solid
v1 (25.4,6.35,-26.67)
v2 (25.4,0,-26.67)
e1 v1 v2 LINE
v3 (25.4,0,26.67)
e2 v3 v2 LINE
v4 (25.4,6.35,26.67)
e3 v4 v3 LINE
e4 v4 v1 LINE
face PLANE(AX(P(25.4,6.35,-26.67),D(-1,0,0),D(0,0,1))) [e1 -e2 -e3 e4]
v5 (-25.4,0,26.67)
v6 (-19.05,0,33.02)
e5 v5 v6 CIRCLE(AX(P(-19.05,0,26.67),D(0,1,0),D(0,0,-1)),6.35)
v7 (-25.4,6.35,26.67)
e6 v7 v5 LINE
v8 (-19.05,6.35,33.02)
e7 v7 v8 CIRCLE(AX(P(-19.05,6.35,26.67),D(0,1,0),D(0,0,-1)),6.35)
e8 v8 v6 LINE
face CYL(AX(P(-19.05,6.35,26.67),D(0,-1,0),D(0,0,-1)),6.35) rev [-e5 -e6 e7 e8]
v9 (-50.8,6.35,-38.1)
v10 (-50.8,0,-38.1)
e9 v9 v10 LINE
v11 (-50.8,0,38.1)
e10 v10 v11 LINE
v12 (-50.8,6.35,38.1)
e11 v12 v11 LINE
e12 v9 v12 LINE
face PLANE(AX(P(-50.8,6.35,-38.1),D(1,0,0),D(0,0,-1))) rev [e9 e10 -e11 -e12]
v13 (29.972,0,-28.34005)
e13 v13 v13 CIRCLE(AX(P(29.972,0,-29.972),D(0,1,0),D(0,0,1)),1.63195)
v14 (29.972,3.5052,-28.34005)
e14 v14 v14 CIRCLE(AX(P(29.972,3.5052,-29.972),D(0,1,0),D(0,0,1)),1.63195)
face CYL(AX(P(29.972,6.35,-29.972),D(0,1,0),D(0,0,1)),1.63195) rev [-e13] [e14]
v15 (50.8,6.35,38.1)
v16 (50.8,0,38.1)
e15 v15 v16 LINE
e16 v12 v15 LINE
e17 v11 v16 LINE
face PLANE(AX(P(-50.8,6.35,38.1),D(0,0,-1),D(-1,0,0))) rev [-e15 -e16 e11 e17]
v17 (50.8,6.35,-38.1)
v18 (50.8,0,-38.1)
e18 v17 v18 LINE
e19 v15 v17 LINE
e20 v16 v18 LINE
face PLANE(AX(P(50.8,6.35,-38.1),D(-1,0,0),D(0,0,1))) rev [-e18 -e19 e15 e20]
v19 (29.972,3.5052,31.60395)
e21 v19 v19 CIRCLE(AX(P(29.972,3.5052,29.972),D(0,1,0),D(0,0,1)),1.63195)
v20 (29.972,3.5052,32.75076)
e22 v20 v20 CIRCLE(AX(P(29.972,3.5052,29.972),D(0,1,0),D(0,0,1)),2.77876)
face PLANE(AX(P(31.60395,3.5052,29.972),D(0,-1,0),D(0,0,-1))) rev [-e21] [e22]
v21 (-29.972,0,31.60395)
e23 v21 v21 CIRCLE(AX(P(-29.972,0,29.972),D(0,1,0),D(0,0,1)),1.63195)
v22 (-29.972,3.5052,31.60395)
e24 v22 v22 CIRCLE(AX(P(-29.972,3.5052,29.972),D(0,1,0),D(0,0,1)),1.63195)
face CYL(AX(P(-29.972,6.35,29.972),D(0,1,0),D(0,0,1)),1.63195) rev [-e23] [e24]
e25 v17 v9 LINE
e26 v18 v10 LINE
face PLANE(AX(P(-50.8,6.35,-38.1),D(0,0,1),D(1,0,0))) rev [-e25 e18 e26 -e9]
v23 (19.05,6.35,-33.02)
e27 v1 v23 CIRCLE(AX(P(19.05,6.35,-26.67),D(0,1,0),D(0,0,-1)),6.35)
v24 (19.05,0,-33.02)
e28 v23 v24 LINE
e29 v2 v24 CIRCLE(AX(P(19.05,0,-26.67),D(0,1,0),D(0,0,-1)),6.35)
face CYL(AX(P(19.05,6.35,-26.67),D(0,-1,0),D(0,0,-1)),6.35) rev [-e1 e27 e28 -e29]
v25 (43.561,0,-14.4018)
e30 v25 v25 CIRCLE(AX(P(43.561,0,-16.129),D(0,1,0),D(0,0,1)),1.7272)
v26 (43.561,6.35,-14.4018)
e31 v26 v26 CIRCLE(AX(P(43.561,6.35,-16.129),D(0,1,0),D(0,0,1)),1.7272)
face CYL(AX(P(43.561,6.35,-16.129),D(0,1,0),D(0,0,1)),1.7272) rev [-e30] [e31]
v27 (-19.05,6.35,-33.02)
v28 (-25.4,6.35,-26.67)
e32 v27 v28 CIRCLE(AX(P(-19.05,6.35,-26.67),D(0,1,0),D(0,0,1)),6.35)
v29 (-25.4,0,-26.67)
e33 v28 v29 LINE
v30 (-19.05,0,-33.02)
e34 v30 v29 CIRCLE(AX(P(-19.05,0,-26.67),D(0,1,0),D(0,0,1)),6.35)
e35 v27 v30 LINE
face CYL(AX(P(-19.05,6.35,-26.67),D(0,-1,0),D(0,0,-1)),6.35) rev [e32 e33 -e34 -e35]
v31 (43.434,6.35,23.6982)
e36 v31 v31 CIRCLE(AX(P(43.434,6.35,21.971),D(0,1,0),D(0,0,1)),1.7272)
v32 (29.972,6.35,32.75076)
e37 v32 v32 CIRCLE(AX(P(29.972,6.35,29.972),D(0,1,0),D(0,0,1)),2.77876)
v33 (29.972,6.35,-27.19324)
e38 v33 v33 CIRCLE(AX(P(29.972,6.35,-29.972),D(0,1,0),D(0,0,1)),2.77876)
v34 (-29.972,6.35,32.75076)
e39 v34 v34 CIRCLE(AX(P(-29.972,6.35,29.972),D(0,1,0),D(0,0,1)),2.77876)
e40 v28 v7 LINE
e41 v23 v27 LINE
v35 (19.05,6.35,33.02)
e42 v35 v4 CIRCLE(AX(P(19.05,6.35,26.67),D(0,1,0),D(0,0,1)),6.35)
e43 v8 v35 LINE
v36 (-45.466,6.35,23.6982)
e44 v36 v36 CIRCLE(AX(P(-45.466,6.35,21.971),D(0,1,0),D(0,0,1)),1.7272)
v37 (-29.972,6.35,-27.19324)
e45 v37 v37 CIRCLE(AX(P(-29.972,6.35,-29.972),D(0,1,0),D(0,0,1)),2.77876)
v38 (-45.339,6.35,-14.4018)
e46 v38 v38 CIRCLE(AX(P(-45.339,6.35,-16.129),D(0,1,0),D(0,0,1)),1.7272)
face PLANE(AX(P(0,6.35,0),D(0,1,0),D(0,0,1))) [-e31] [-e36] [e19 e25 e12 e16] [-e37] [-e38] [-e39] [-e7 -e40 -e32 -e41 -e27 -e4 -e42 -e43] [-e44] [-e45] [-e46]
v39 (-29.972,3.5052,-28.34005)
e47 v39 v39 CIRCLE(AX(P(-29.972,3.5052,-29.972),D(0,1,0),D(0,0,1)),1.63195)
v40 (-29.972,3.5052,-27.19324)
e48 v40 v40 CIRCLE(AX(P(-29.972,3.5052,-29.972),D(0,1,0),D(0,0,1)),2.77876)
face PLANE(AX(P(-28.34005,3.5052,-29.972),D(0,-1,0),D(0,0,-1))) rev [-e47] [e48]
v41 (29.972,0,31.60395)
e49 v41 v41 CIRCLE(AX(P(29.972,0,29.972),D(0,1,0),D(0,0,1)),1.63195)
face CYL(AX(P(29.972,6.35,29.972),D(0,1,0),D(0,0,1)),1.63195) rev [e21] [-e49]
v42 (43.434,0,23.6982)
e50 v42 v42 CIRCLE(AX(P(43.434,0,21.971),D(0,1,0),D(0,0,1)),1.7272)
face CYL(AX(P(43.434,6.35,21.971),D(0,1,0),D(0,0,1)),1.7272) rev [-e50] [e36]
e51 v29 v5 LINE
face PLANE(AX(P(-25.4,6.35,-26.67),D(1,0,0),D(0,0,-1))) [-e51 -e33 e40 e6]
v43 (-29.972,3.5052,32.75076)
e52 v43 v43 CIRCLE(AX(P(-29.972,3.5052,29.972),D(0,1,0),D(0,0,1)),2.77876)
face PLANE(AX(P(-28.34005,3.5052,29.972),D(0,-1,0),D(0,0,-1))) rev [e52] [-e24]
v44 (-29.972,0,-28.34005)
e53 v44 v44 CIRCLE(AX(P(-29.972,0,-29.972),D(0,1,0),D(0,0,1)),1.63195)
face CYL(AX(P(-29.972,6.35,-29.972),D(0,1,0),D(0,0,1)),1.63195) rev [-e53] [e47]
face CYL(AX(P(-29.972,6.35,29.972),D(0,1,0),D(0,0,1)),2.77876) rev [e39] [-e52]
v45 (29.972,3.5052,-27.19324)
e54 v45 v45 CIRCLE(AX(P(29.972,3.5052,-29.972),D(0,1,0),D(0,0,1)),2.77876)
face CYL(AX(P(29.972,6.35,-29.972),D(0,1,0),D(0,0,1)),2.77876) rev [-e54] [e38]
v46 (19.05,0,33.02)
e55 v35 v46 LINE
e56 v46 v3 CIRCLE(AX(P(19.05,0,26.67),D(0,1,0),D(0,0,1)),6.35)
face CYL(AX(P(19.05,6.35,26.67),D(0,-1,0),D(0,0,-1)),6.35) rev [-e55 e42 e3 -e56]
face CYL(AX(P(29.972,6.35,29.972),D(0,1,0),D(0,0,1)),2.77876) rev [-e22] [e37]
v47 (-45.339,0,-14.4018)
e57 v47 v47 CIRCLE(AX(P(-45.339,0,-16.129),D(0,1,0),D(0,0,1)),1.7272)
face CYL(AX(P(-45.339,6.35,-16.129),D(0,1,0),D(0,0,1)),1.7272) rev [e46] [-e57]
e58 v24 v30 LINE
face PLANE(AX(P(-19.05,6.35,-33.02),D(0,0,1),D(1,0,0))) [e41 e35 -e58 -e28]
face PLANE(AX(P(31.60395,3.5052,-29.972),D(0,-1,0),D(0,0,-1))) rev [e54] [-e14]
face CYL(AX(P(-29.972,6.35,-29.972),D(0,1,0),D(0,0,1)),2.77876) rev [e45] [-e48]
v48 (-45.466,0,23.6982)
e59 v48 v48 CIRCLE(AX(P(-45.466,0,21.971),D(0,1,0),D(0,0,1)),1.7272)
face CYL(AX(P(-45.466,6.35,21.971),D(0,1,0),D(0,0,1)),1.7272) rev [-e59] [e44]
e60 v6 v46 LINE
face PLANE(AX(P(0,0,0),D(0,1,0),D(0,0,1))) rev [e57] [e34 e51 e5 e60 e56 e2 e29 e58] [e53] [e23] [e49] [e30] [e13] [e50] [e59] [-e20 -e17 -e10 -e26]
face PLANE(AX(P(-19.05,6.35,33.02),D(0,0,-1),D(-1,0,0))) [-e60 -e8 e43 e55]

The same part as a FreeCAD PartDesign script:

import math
import FreeCAD as App
import Part
import Sketcher
Q = App.Units.Quantity

doc = App.newDocument("Part")
body = doc.addObject("PartDesign::Body", "Body")

sketch1 = body.newObject("Sketcher::SketchObject", "Sketch")
sketch1.AttachmentSupport = (doc.getObject("XZ_Plane"), [""])
sketch1.MapMode = "FlatFace"
sketch1.addGeometry(Part.LineSegment(App.Vector(-51, -38, 0), App.Vector(-51, 38, 0)), False)
sketch1.addGeometry(Part.LineSegment(App.Vector(-51, 38, 0), App.Vector(51, 38, 0)), False)
sketch1.addGeometry(Part.LineSegment(App.Vector(51, 38, 0), App.Vector(51, -38, 0)), False)
sketch1.addGeometry(Part.LineSegment(App.Vector(51, -38, 0), App.Vector(-51, -38, 0)), False)
sketch1.addGeometry(Part.ArcOfCircle(Part.Circle(App.Vector(-19, -27, 0), App.Vector(0, 0, 1), 6), math.radians(180), math.radians(270)), False)
sketch1.addGeometry(Part.LineSegment(App.Vector(-19, -33, 0), App.Vector(19, -33, 0)), False)
sketch1.addGeometry(Part.ArcOfCircle(Part.Circle(App.Vector(19, -27, 0), App.Vector(0, 0, 1), 6), math.radians(-90), math.radians(0)), False)
sketch1.addGeometry(Part.LineSegment(App.Vector(25, -27, 0), App.Vector(25, 27, 0)), False)
sketch1.addGeometry(Part.ArcOfCircle(Part.Circle(App.Vector(19, 27, 0), App.Vector(0, 0, 1), 6), math.radians(0), math.radians(90)), False)
sketch1.addGeometry(Part.LineSegment(App.Vector(19, 33, 0), App.Vector(-19, 33, 0)), False)
sketch1.addGeometry(Part.ArcOfCircle(Part.Circle(App.Vector(-19, 27, 0), App.Vector(0, 0, 1), 6), math.radians(90), math.radians(180)), False)
sketch1.addGeometry(Part.LineSegment(App.Vector(-25, 27, 0), App.Vector(-25, -27, 0)), False)
sketch1.addConstraint(Sketcher.Constraint("Coincident", 0, 2, 1, 1))
sketch1.addConstraint(Sketcher.Constraint("Coincident", 1, 2, 2, 1))
sketch1.addConstraint(Sketcher.Constraint("Coincident", 2, 2, 3, 1))
sketch1.addConstraint(Sketcher.Constraint("Coincident", 3, 2, 0, 1))
sketch1.addConstraint(Sketcher.Constraint("Tangent", 4, 2, 5, 1))
sketch1.addConstraint(Sketcher.Constraint("Tangent", 5, 2, 6, 1))
sketch1.addConstraint(Sketcher.Constraint("Tangent", 6, 2, 7, 1))
sketch1.addConstraint(Sketcher.Constraint("Tangent", 7, 2, 8, 1))
sketch1.addConstraint(Sketcher.Constraint("Tangent", 8, 2, 9, 1))
sketch1.addConstraint(Sketcher.Constraint("Tangent", 9, 2, 10, 1))
sketch1.addConstraint(Sketcher.Constraint("Tangent", 10, 2, 11, 1))
sketch1.addConstraint(Sketcher.Constraint("Tangent", 11, 2, 4, 1))
sketch1.addConstraint(Sketcher.Constraint("Vertical", 0))
sketch1.addConstraint(Sketcher.Constraint("Horizontal", 1))
sketch1.addConstraint(Sketcher.Constraint("Vertical", 2))
sketch1.addConstraint(Sketcher.Constraint("Horizontal", 3))
sketch1.addConstraint(Sketcher.Constraint("Horizontal", 5))
sketch1.addConstraint(Sketcher.Constraint("Vertical", 7))
sketch1.addConstraint(Sketcher.Constraint("Horizontal", 9))
sketch1.addConstraint(Sketcher.Constraint("Vertical", 11))
sketch1.addConstraint(Sketcher.Constraint("Equal", 4, 6))
sketch1.addConstraint(Sketcher.Constraint("Equal", 6, 8))
sketch1.addConstraint(Sketcher.Constraint("Equal", 8, 10))
sketch1.addConstraint(Sketcher.Constraint("Symmetric", 4, 3, 8, 3, -1, 1))
sketch1.addConstraint(Sketcher.Constraint("Symmetric", 0, 2, 2, 2, -1, 1))
sketch1.addConstraint(Sketcher.Constraint("DistanceX", 1, 1, 1, 2, Q("4 in")))
sketch1.addConstraint(Sketcher.Constraint("DistanceY", 0, 1, 0, 2, Q("3 in")))
sketch1.addConstraint(Sketcher.Constraint("Radius", 4, Q("0.25 in")))
sketch1.addConstraint(Sketcher.Constraint("DistanceX", 5, 1, 5, 2, Q("1.5 in")))
sketch1.addConstraint(Sketcher.Constraint("DistanceY", 7, 1, 7, 2, Q("2.1 in")))
pad1 = body.newObject("PartDesign::Pad", "Pad")
pad1.Profile = sketch1
pad1.Length = Q("0.25 in")
pad1.Reversed = True

sketch2 = body.newObject("Sketcher::SketchObject", "Sketch001")
sketch2.AttachmentSupport = (doc.getObject("XZ_Plane"), [""])
sketch2.MapMode = "FlatFace"
sketch2.AttachmentOffset = App.Placement(App.Vector(0, 0, -0.25 * 25.4), App.Rotation())
sketch2.addGeometry(Part.Circle(App.Vector(-30, -30, 0), App.Vector(0, 0, 1), 1.6), False)
sketch2.addGeometry(Part.Circle(App.Vector(30, -30, 0), App.Vector(0, 0, 1), 1.6), False)
sketch2.addGeometry(Part.Circle(App.Vector(30, 30, 0), App.Vector(0, 0, 1), 1.6), False)
sketch2.addGeometry(Part.Circle(App.Vector(-30, 30, 0), App.Vector(0, 0, 1), 1.6), False)
sketch2.addConstraint(Sketcher.Constraint("Equal", 0, 1))
sketch2.addConstraint(Sketcher.Constraint("Equal", 1, 2))
sketch2.addConstraint(Sketcher.Constraint("Equal", 2, 3))
sketch2.addConstraint(Sketcher.Constraint("Symmetric", 0, 3, 2, 3, -1, 1))
sketch2.addConstraint(Sketcher.Constraint("Symmetric", 1, 3, 3, 3, -1, 1))
sketch2.addConstraint(Sketcher.Constraint("Symmetric", 0, 3, 1, 3, -2))
sketch2.addConstraint(Sketcher.Constraint("Diameter", 0, Q("0.1285 in")))
sketch2.addConstraint(Sketcher.Constraint("DistanceX", 0, 3, -1, 1, Q("1.18 in")))
sketch2.addConstraint(Sketcher.Constraint("DistanceY", 0, 3, -1, 1, Q("1.18 in")))
doc.recompute()
hole = body.newObject("PartDesign::Hole", "Hole")
hole.Profile = sketch2
hole.ThreadType = "None"
hole.Diameter = Q("0.1285 in")
hole.DepthType = "ThroughAll"
hole.HoleCutType = "Counterbore"
hole.HoleCutDiameter = Q("0.2188 in")
hole.HoleCutDepth = Q("0.112 in")
hole.Reversed = True

sketch3 = body.newObject("Sketcher::SketchObject", "Sketch002")
sketch3.AttachmentSupport = (doc.getObject("XZ_Plane"), [""])
sketch3.MapMode = "FlatFace"
sketch3.AttachmentOffset = App.Placement(App.Vector(0, 0, -0.25 * 25.4), App.Rotation())
sketch3.addGeometry(Part.Circle(App.Vector(-45.3, -16.1, 0), App.Vector(0, 0, 1), 1.7), False)
sketch3.addGeometry(Part.Circle(App.Vector(-45.5, 22, 0), App.Vector(0, 0, 1), 1.7), False)
sketch3.addGeometry(Part.Circle(App.Vector(43.6, -16.1, 0), App.Vector(0, 0, 1), 1.7), False)
sketch3.addGeometry(Part.Circle(App.Vector(43.4, 22, 0), App.Vector(0, 0, 1), 1.7), False)
sketch3.addConstraint(Sketcher.Constraint("Equal", 0, 1))
sketch3.addConstraint(Sketcher.Constraint("Equal", 1, 2))
sketch3.addConstraint(Sketcher.Constraint("Equal", 2, 3))
sketch3.addConstraint(Sketcher.Constraint("Horizontal", 0, 3, 2, 3))
sketch3.addConstraint(Sketcher.Constraint("Horizontal", 1, 3, 3, 3))
sketch3.addConstraint(Sketcher.Constraint("Diameter", 0, Q("0.136 in")))
sketch3.addConstraint(Sketcher.Constraint("DistanceY", 0, 3, 1, 3, Q("1.5 in")))
sketch3.addConstraint(Sketcher.Constraint("DistanceX", 0, 3, 2, 3, Q("3.5 in")))
sketch3.addConstraint(Sketcher.Constraint("DistanceX", 1, 3, 3, 3, Q("3.5 in")))
sketch3.addConstraint(Sketcher.Constraint("DistanceX", 1, 3, -1, 1, Q("1.79 in")))
sketch3.addConstraint(Sketcher.Constraint("DistanceX", 0, 3, -1, 1, Q("1.785 in")))
sketch3.addConstraint(Sketcher.Constraint("DistanceY", 0, 3, -1, 1, Q("0.635 in")))
doc.recompute()
hole2 = body.newObject("PartDesign::Hole", "Hole001")
hole2.Profile = sketch3
hole2.ThreadType = "None"
hole2.Diameter = Q("0.136 in")
hole2.DepthType = "ThroughAll"
hole2.Reversed = True

doc.recompute()
